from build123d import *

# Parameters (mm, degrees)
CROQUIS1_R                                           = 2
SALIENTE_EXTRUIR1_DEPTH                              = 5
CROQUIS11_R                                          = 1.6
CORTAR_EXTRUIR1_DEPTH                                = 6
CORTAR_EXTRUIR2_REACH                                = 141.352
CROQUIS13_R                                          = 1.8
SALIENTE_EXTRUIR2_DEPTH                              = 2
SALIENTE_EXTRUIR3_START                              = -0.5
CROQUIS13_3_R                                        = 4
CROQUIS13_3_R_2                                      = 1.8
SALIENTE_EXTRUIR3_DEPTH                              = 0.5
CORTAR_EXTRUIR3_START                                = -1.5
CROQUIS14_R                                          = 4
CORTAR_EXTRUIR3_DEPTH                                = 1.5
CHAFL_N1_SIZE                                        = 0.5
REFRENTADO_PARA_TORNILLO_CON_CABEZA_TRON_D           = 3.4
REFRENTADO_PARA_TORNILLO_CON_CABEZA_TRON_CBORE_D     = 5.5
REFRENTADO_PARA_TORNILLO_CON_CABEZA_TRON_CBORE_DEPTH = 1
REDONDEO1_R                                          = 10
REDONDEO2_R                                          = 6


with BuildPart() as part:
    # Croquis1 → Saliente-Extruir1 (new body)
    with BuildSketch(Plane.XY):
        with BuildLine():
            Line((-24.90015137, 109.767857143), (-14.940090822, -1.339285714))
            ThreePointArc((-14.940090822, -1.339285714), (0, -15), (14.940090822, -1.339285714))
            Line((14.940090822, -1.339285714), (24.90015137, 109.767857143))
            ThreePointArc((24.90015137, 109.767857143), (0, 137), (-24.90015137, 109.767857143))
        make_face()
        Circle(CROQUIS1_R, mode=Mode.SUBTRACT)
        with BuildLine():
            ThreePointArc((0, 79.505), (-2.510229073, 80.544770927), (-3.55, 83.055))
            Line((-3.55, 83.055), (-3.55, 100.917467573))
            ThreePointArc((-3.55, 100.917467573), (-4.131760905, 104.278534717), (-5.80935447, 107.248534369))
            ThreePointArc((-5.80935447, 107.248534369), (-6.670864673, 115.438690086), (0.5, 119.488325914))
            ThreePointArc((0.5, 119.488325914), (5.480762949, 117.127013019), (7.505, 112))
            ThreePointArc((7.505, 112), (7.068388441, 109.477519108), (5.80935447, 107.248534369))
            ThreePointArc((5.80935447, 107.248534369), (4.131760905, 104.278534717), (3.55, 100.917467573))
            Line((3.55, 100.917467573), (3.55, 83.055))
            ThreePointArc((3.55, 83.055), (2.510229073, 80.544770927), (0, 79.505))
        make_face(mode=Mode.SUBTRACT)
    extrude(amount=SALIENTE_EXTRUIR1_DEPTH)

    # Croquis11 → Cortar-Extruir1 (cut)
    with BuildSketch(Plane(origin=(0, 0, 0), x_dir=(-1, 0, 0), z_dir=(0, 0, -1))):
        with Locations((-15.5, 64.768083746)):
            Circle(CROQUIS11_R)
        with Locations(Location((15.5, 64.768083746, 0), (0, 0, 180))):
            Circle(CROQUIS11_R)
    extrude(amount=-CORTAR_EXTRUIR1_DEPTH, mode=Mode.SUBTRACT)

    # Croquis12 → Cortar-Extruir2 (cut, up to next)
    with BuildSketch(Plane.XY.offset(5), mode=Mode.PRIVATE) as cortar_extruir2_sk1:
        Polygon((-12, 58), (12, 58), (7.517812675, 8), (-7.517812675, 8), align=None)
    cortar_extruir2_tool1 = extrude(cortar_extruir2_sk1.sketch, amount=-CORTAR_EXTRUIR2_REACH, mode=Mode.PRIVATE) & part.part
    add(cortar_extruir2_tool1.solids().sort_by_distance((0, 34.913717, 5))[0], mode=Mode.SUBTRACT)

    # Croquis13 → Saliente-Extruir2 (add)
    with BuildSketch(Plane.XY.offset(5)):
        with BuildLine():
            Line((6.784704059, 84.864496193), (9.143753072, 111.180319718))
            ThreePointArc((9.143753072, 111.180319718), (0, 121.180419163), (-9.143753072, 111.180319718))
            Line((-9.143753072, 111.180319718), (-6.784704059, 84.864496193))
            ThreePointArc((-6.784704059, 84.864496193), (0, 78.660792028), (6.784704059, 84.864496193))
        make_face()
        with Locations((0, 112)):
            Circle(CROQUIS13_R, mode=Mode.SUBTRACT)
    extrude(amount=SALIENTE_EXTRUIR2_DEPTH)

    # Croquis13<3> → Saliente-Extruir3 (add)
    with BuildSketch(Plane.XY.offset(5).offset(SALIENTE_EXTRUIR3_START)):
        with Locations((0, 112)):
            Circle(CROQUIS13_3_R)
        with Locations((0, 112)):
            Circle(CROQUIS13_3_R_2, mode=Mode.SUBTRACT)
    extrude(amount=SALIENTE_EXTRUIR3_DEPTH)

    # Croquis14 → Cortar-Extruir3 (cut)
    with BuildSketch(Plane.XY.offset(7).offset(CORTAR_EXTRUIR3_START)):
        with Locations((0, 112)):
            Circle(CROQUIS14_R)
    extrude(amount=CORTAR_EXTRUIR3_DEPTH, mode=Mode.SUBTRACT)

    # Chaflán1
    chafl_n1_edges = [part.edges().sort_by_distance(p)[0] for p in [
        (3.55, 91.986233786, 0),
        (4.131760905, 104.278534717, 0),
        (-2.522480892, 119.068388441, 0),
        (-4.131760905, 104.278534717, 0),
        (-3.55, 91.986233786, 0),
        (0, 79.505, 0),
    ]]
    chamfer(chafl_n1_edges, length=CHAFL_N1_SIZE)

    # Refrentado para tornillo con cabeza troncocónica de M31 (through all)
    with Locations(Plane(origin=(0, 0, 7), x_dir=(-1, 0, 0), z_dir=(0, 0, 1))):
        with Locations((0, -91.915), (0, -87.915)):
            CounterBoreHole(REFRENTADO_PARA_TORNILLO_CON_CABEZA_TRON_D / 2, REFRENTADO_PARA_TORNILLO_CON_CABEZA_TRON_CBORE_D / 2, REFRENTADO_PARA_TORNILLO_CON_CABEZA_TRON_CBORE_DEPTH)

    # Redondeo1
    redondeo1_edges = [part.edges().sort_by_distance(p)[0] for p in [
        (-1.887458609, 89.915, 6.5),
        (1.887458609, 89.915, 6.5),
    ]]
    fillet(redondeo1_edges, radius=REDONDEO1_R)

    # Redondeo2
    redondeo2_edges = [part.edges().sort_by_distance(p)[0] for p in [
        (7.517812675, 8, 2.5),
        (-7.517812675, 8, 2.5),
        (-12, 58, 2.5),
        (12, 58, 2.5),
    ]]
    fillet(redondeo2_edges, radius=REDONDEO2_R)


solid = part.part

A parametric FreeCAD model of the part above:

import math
import FreeCAD as App
import Part
import Sketcher

V = App.Vector
Q = App.Units.Quantity


def edges_at(feature, points):
    """Names of the edges that pass closest to the given points."""
    edges = feature.Shape.Edges
    near = lambda p: min(range(len(edges)), key=lambda i: edges[i].distToShape(Part.Vertex(*p))[0])
    return sorted({f"Edge{near(p) + 1}" for p in points})

doc = App.newDocument("Part")
body = doc.addObject("PartDesign::Body", "Body")

# Sketch on XY plane
sketch1 = body.newObject("Sketcher::SketchObject", "Sketch")
sketch1.AttachmentSupport = (doc.getObject("XY_Plane"), [""])
sketch1.MapMode = "FlatFace"
sketch1.addGeometry([
    Part.LineSegment(V(-24.9, 109.8, 0), V(-14.9, -1.3, 0)),  # 0
    Part.ArcOfCircle(Part.Circle(V(0, 0, 0), V(0, 0, 1), 15), math.radians(-175), math.radians(-5)),  # 1
    Part.LineSegment(V(14.9, -1.3, 0), V(24.9, 109.8, 0)),  # 2
    Part.ArcOfCircle(Part.Circle(V(0, 112, 0), V(0, 0, 1), 25), math.radians(-5), math.radians(185)),  # 3
    Part.Circle(V(0, 0, 0), V(0, 0, 1), 2),  # 4
    Part.ArcOfCircle(Part.Circle(V(0, 83.1, 0), V(0, 0, 1), 3.6), math.radians(-90), math.radians(0)),  # 5
    Part.ArcOfCircle(Part.Circle(V(0, 83.1, 0), V(0, 0, 1), 3.6), math.radians(-180), math.radians(-90)),  # 6
    Part.LineSegment(V(-3.5, 83.1, 0), V(-3.5, 100.9, 0)),  # 7
    Part.ArcOfCircle(Part.Circle(V(-13.6, 100.9, 0), V(0, 0, 1), 10), math.radians(0), math.radians(39)),  # 8
    Part.ArcOfCircle(Part.Circle(V(0, 112, 0), V(0, 0, 1), 7.5), math.radians(86), math.radians(219)),  # 9
    Part.ArcOfCircle(Part.Circle(V(0, 112, 0), V(0, 0, 1), 7.5), math.radians(0), math.radians(86)),  # 10
    Part.ArcOfCircle(Part.Circle(V(0, 112, 0), V(0, 0, 1), 7.5), math.radians(-39), math.radians(0)),  # 11
    Part.ArcOfCircle(Part.Circle(V(13.6, 100.9, 0), V(0, 0, 1), 10), math.radians(141), math.radians(180)),  # 12
    Part.LineSegment(V(3.5, 100.9, 0), V(3.5, 83.1, 0)),  # 13
], False)
sketch1.addConstraint([
    Sketcher.Constraint("Tangent", 0, 2, 1, 1),
    Sketcher.Constraint("Tangent", 1, 2, 2, 1),
    Sketcher.Constraint("Tangent", 2, 2, 3, 1),
    Sketcher.Constraint("Tangent", 3, 2, 0, 1),
    Sketcher.Constraint("Tangent", 5, 1, 6, 2),
    Sketcher.Constraint("Tangent", 6, 1, 7, 1),
    Sketcher.Constraint("Tangent", 7, 2, 8, 1),
    Sketcher.Constraint("Tangent", 8, 2, 9, 2),
    Sketcher.Constraint("Tangent", 9, 1, 10, 2),
    Sketcher.Constraint("Tangent", 10, 1, 11, 2),
    Sketcher.Constraint("Tangent", 11, 1, 12, 1),
    Sketcher.Constraint("Tangent", 12, 2, 13, 1),
    Sketcher.Constraint("Tangent", 13, 2, 5, 2),
    Sketcher.Constraint("Vertical", 7),
    Sketcher.Constraint("Vertical", 13),
    Sketcher.Constraint("Coincident", 1, 3, -1, 1),
    Sketcher.Constraint("Coincident", 4, 3, -1, 1),
    Sketcher.Constraint("Coincident", 9, 3, 3, 3),
    Sketcher.Constraint("Coincident", 11, 3, 3, 3),
    Sketcher.Constraint("Equal", 5, 6),
    Sketcher.Constraint("Equal", 8, 12),
    Sketcher.Constraint("Symmetric", 8, 3, 12, 3, -2),
    Sketcher.Constraint("PointOnObject", 5, 1, -2),
    Sketcher.Constraint("Horizontal", 11, 3, 10, 1),
    Sketcher.Constraint("Diameter", 4, Q("4 mm")),
    Sketcher.Constraint("Radius", 1, Q("15 mm")),
    Sketcher.Constraint("Radius", 3, Q("25 mm")),
    Sketcher.Constraint("Radius", 8, Q("10 mm")),
    Sketcher.Constraint("Radius", 5, Q("3.55 mm")),
    Sketcher.Constraint("DistanceY", -1, 1, 3, 3, Q("112 mm")),
    Sketcher.Constraint("Radius", 9, Q("7.505 mm")),
    Sketcher.Constraint("DistanceX", -1, 1, 9, 1, Q("0.5 mm")),
    Sketcher.Constraint("DistanceY", -1, 1, 5, 3, Q("83.055 mm")),
])
pad1 = body.newObject("PartDesign::Pad", "Pad")
pad1.Profile = sketch1
pad1.Length = 5

# Sketch on XY plane
sketch2 = body.newObject("Sketcher::SketchObject", "Sketch001")
sketch2.AttachmentSupport = (doc.getObject("XY_Plane"), [""])
sketch2.MapMode = "FlatFace"
sketch2.addGeometry([
    Part.Circle(V(15.5, 64.8, 0), V(0, 0, 1), 1.6),
    Part.Circle(V(-15.5, 64.8, 0), V(0, 0, 1), 1.6),
], False)
sketch2.addConstraint([
    Sketcher.Constraint("Equal", 0, 1),
    Sketcher.Constraint("Symmetric", 0, 3, 1, 3, -2),
    Sketcher.Constraint("Diameter", 0, Q("3.2 mm")),
    Sketcher.Constraint("DistanceX", 1, 3, 0, 3, Q("31 mm")),
    Sketcher.Constraint("DistanceY", -1, 1, 0, 3, Q("64.768084 mm")),
])
pocket1 = body.newObject("PartDesign::Pocket", "Pocket")
pocket1.Profile = sketch2
pocket1.Length = 6
pocket1.Reversed = True

# Sketch on XY plane
sketch3 = body.newObject("Sketcher::SketchObject", "Sketch002")
sketch3.AttachmentSupport = (doc.getObject("XY_Plane"), [""])
sketch3.MapMode = "FlatFace"
sketch3.AttachmentOffset = App.Placement(V(0, 0, 5), App.Rotation())
sketch3.addGeometry([
    Part.LineSegment(V(12, 58, 0), V(-12, 58, 0)),
    Part.LineSegment(V(-12, 58, 0), V(-8, 8, 0)),
    Part.LineSegment(V(-8, 8, 0), V(8, 8, 0)),
    Part.LineSegment(V(8, 8, 0), V(12, 58, 0)),
], False)
sketch3.addConstraint([
    Sketcher.Constraint("Coincident", 0, 2, 1, 1),
    Sketcher.Constraint("Coincident", 1, 2, 2, 1),
    Sketcher.Constraint("Coincident", 2, 2, 3, 1),
    Sketcher.Constraint("Coincident", 3, 2, 0, 1),
    Sketcher.Constraint("Horizontal", 0),
    Sketcher.Constraint("Horizontal", 2),
    Sketcher.Constraint("Equal", 1, 3),
    Sketcher.Constraint("DistanceX", 0, 2, 0, 1, Q("24 mm")),
    Sketcher.Constraint("DistanceX", 0, 2, -1, 1, Q("12 mm")),
    Sketcher.Constraint("DistanceY", -1, 1, 0, 2, Q("58 mm")),
    Sketcher.Constraint("DistanceY", -1, 1, 1, 2, Q("8 mm")),
    Sketcher.Constraint("Distance", 1, Q("50.200498 mm")),
])
pocket2 = body.newObject("PartDesign::Pocket", "Pocket001")
pocket2.Profile = sketch3
pocket2.Type = "UpToFirst"

# Sketch on XY plane
sketch4 = body.newObject("Sketcher::SketchObject", "Sketch003")
sketch4.AttachmentSupport = (doc.getObject("XY_Plane"), [""])
sketch4.MapMode = "FlatFace"
sketch4.AttachmentOffset = App.Placement(V(0, 0, 5), App.Rotation())
sketch4.addGeometry([
    Part.LineSegment(V(6.8, 84.9, 0), V(9.1, 111.2, 0)),  # 0
    Part.ArcOfCircle(Part.Circle(V(0, 112, 0), V(0, 0, 1), 9.2), math.radians(-5), math.radians(185)),  # 1
    Part.LineSegment(V(-9.1, 111.2, 0), V(-6.8, 84.9, 0)),  # 2
    Part.ArcOfCircle(Part.Circle(V(0, 85.5, 0), V(0, 0, 1), 6.8), math.radians(-175), math.radians(-5)),  # 3
    Part.Circle(V(0, 112, 0), V(0, 0, 1), 1.8),  # 4
], False)
sketch4.addConstraint([
    Sketcher.Constraint("Tangent", 0, 2, 1, 1),
    Sketcher.Constraint("Tangent", 1, 2, 2, 1),
    Sketcher.Constraint("Tangent", 2, 2, 3, 1),
    Sketcher.Constraint("Tangent", 3, 2, 0, 1),
    Sketcher.Constraint("Coincident", 4, 3, 1, 3),
    Sketcher.Constraint("Symmetric", 0, 2, 1, 2, -2),
    Sketcher.Constraint("Diameter", 4, Q("3.6 mm")),
    Sketcher.Constraint("DistanceY", -1, 1, 1, 3, Q("112 mm")),
    Sketcher.Constraint("Radius", 1, Q("9.180419 mm")),
    Sketcher.Constraint("Radius", 3, Q("6.81191 mm")),
    Sketcher.Constraint("Distance", 0, Q("26.421349 mm")),
])
pad2 = body.newObject("PartDesign::Pad", "Pad001")
pad2.Profile = sketch4
pad2.Length = 2

# Sketch on XY plane
sketch5 = body.newObject("Sketcher::SketchObject", "Sketch004")
sketch5.AttachmentSupport = (doc.getObject("XY_Plane"), [""])
sketch5.MapMode = "FlatFace"
sketch5.AttachmentOffset = App.Placement(V(0, 0, 4.5), App.Rotation())
sketch5.addGeometry([
    Part.Circle(V(0, 112, 0), V(0, 0, 1), 4),
    Part.Circle(V(0, 112, 0), V(0, 0, 1), 1.8),
], False)
sketch5.addConstraint([
    Sketcher.Constraint("Coincident", 1, 3, 0, 3),
    Sketcher.Constraint("PointOnObject", 0, 3, -2),
    Sketcher.Constraint("Diameter", 0, Q("8 mm")),
    Sketcher.Constraint("Diameter", 1, Q("3.6 mm")),
    Sketcher.Constraint("DistanceY", -1, 1, 0, 3, Q("112 mm")),
])
pad3 = body.newObject("PartDesign::Pad", "Pad002")
pad3.Profile = sketch5
pad3.Length = 0.5

# Sketch on XY plane
sketch6 = body.newObject("Sketcher::SketchObject", "Sketch005")
sketch6.AttachmentSupport = (doc.getObject("XY_Plane"), [""])
sketch6.MapMode = "FlatFace"
sketch6.AttachmentOffset = App.Placement(V(0, 0, 5.5), App.Rotation())
sketch6.addGeometry(Part.Circle(V(0, 112, 0), V(0, 0, 1), 4), False)
sketch6.addConstraint([
    Sketcher.Constraint("PointOnObject", 0, 3, -2),
    Sketcher.Constraint("Diameter", 0, Q("8 mm")),
    Sketcher.Constraint("DistanceY", -1, 1, 0, 3, Q("112 mm")),
])
pocket3 = body.newObject("PartDesign::Pocket", "Pocket002")
pocket3.Profile = sketch6
pocket3.Length = 1.5
pocket3.Reversed = True
doc.recompute()

chamfer = body.newObject("PartDesign::Chamfer", "Chamfer")
chamfer.Base = (pocket3, edges_at(pocket3, [
    (3.55, 91.986, 0),
    (4.132, 104.279, 0),
    (-6.671, 115.439, 0),
    (-4.132, 104.279, 0),
    (-3.55, 91.986, 0),
    (0, 79.505, 2.5),
]))
chamfer.Size = 0.5

# Sketch on XY plane
sketch7 = body.newObject("Sketcher::SketchObject", "Sketch006")
sketch7.AttachmentSupport = (doc.getObject("XY_Plane"), [""])
sketch7.MapMode = "FlatFace"
sketch7.AttachmentOffset = App.Placement(V(0, 0, 7), App.Rotation())
sketch7.addGeometry([
    Part.Circle(V(0, 91.9, 0), V(0, 0, 1), 1.7),
    Part.Circle(V(0, 87.9, 0), V(0, 0, 1), 1.7),
], False)
sketch7.addConstraint([
    Sketcher.Constraint("Equal", 0, 1),
    Sketcher.Constraint("PointOnObject", 0, 3, -2),
    Sketcher.Constraint("PointOnObject", 1, 3, -2),
    Sketcher.Constraint("Diameter", 0, Q("3.4 mm")),
    Sketcher.Constraint("DistanceY", 1, 3, 0, 3, Q("4 mm")),
    Sketcher.Constraint("DistanceY", -1, 1, 0, 3, Q("91.915 mm")),
])
doc.recompute()
hole = body.newObject("PartDesign::Hole", "Hole")
hole.Profile = sketch7
hole.ThreadType = "None"
hole.Diameter = 3.4
hole.DepthType = "ThroughAll"
hole.HoleCutType = "Counterbore"
hole.HoleCutDiameter = 5.5
hole.HoleCutDepth = 1
doc.recompute()

fillet = body.newObject("PartDesign::Fillet", "Fillet")
fillet.Base = (hole, edges_at(hole, [(-1.887, 89.915, 6.5), (1.887, 89.915, 6.5)]))
fillet.Radius = 10
doc.recompute()

fillet2 = body.newObject("PartDesign::Fillet", "Fillet001")
fillet2.Base = (fillet, edges_at(fillet, [
    (7.518, 8, 2.5),
    (-7.518, 8, 2.5),
    (-12, 58, 2.5),
    (12, 58, 2.5),
]))
fillet2.Radius = 6

doc.recompute()
